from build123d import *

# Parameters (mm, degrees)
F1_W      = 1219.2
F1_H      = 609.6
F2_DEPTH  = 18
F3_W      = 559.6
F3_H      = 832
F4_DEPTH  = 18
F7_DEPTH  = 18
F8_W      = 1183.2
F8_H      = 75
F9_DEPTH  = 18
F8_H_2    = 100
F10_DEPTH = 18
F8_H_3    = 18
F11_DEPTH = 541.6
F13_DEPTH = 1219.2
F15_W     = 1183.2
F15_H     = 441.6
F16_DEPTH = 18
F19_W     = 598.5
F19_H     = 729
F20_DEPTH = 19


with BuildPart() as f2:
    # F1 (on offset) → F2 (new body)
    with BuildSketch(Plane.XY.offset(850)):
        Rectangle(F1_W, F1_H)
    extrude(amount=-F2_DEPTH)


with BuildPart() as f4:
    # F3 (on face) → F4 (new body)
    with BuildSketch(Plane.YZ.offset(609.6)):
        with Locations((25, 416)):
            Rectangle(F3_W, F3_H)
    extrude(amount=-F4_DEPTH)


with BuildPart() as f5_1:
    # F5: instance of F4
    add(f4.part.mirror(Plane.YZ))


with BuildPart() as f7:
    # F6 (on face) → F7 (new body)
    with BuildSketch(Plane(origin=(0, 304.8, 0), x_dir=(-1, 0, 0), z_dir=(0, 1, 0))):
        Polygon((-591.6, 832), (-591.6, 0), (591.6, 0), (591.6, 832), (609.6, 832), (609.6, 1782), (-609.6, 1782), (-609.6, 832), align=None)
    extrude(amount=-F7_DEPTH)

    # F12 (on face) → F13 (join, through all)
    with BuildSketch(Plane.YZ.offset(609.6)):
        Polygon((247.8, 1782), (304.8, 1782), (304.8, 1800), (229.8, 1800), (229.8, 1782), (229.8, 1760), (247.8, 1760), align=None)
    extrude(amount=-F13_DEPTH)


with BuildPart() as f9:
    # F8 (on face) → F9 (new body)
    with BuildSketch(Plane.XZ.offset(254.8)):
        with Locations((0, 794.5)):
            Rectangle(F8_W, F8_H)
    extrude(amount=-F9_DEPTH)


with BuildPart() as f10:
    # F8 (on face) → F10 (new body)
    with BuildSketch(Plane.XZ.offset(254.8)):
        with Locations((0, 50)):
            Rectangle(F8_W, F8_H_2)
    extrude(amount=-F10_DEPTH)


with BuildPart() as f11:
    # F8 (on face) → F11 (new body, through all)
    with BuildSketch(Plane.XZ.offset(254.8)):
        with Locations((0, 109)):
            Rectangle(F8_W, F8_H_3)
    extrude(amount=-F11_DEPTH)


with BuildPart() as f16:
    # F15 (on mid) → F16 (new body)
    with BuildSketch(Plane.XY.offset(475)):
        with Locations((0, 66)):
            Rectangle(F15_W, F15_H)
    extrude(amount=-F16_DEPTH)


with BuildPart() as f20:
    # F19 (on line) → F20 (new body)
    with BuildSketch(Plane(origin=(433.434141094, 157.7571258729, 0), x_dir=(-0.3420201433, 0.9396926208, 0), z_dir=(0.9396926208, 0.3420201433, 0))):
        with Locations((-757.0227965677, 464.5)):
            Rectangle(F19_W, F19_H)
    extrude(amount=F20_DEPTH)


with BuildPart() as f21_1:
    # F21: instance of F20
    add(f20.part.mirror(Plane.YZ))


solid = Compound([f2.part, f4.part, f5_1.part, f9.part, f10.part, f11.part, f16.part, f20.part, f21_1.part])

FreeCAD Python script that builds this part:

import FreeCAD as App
import Part
import Sketcher

V = App.Vector


def add_polygon(sketch, points):
    """Adds a closed chain of lines whose ends are joined by coincident constraints."""
    first, n = sketch.GeometryCount, len(points)
    for a, b in zip(points, points[1:] + points[:1]):
        sketch.addGeometry(Part.LineSegment(App.Vector(*a, 0), App.Vector(*b, 0)), False)
    for i in range(n):
        sketch.addConstraint(Sketcher.Constraint("Coincident", first + i, 2, first + (i + 1) % n, 1))

doc = App.newDocument("Part")
body = doc.addObject("PartDesign::Body", "Body")

# Sketch on XY plane
sketch1 = body.newObject("Sketcher::SketchObject", "Sketch")
sketch1.AttachmentSupport = (doc.getObject("XY_Plane"), [""])
sketch1.MapMode = "FlatFace"
sketch1.AttachmentOffset = App.Placement(V(0, 0, 850), App.Rotation())
add_polygon(sketch1, [(-610, 305), (-610, -305), (610, -305), (610, 305)])  # lines 0-3
sketch1.addConstraint(Sketcher.Constraint("Vertical", 0))
sketch1.addConstraint(Sketcher.Constraint("Horizontal", 1))
sketch1.addConstraint(Sketcher.Constraint("Vertical", 2))
sketch1.addConstraint(Sketcher.Constraint("Horizontal", 3))
sketch1.addConstraint(Sketcher.Constraint("Symmetric", 0, 2, 2, 2, -1, 1))
sketch1.addConstraint(Sketcher.Constraint("DistanceX", 1, 1, 1, 2, 1219.2))
sketch1.addConstraint(Sketcher.Constraint("DistanceY", 0, 2, 0, 1, 609.6))
pad1 = body.newObject("PartDesign::Pad", "Pad")
pad1.Profile = sketch1
pad1.Length = 18
pad1.Reversed = True
body2 = doc.addObject("PartDesign::Body", "Body001")

# Sketch on YZ plane
sketch2 = body2.newObject("Sketcher::SketchObject", "Sketch001")
sketch2.AttachmentSupport = (doc.getObject("YZ_Plane001"), [""])
sketch2.MapMode = "FlatFace"
sketch2.AttachmentOffset = App.Placement(V(0, 0, 609.6), App.Rotation())
add_polygon(sketch2, [(-255, 832), (-255, 0), (305, 0), (305, 832)])  # lines 0-3
sketch2.addConstraint(Sketcher.Constraint("Vertical", 0))
sketch2.addConstraint(Sketcher.Constraint("Horizontal", 1))
sketch2.addConstraint(Sketcher.Constraint("Vertical", 2))
sketch2.addConstraint(Sketcher.Constraint("Horizontal", 3))
sketch2.addConstraint(Sketcher.Constraint("PointOnObject", 0, 2, -1))
sketch2.addConstraint(Sketcher.Constraint("DistanceY", 0, 2, 0, 1, 832.0))
sketch2.addConstraint(Sketcher.Constraint("DistanceX", 1, 1, 1, 2, 559.6))
sketch2.addConstraint(Sketcher.Constraint("DistanceX", 0, 2, -1, 1, 254.8))
pad2 = body2.newObject("PartDesign::Pad", "Pad001")
pad2.Profile = sketch2
pad2.Length = 18
pad2.Reversed = True
body3 = doc.addObject("PartDesign::Body", "Body002")
doc.recompute()

mirroring = doc.addObject("Part::Mirroring", "Mirroring")
mirroring.Source = body2
mirroring.Base = V(0, 0, 0)
mirroring.Normal = V(1, 0, 0)
body3.BaseFeature = mirroring
doc.recompute()
body4 = doc.addObject("PartDesign::Body", "Body003")

# Sketch on XZ plane
sketch3 = body4.newObject("Sketcher::SketchObject", "Sketch002")
sketch3.AttachmentSupport = (doc.getObject("XZ_Plane003"), [""])
sketch3.MapMode = "FlatFace"
sketch3.AttachmentOffset = App.Placement(V(0, 0, -304.8), App.Rotation())
add_polygon(sketch3, [(592, 832), (592, 0), (-592, 0), (-592, 832), (-610, 832), (-610, 1782), (610, 1782), (610, 832)])  # lines 0-7
sketch3.addConstraint(Sketcher.Constraint("Vertical", 0))
sketch3.addConstraint(Sketcher.Constraint("Horizontal", 1))
sketch3.addConstraint(Sketcher.Constraint("Vertical", 2))
sketch3.addConstraint(Sketcher.Constraint("Horizontal", 3))
sketch3.addConstraint(Sketcher.Constraint("Vertical", 4))
sketch3.addConstraint(Sketcher.Constraint("Horizontal", 5))
sketch3.addConstraint(Sketcher.Constraint("Vertical", 6))
sketch3.addConstraint(Sketcher.Constraint("Horizontal", 7))
sketch3.addConstraint(Sketcher.Constraint("Symmetric", 0, 2, 1, 2, -1, 1))
sketch3.addConstraint(Sketcher.Constraint("Symmetric", 3, 2, 6, 2, -2))
sketch3.addConstraint(Sketcher.Constraint("DistanceX", 3, 2, 3, 1, 18.0))
sketch3.addConstraint(Sketcher.Constraint("DistanceY", 0, 2, 0, 1, 832.0))
sketch3.addConstraint(Sketcher.Constraint("DistanceY", 4, 1, 4, 2, 950.0))
sketch3.addConstraint(Sketcher.Constraint("DistanceX", 1, 2, 1, 1, 1183.2))
pad3 = body4.newObject("PartDesign::Pad", "Pad002")
pad3.Profile = sketch3
pad3.Length = 18

# Sketch on YZ plane
sketch4 = body4.newObject("Sketcher::SketchObject", "Sketch003")
sketch4.AttachmentSupport = (doc.getObject("YZ_Plane003"), [""])
sketch4.MapMode = "FlatFace"
sketch4.AttachmentOffset = App.Placement(V(0, 0, 609.6), App.Rotation())
add_polygon(sketch4, [(248, 1782), (305, 1782), (305, 1800), (230, 1800), (230, 1760), (248, 1760)])  # lines 0-5
sketch4.addConstraint(Sketcher.Constraint("Horizontal", 0))
sketch4.addConstraint(Sketcher.Constraint("Vertical", 1))
sketch4.addConstraint(Sketcher.Constraint("Horizontal", 2))
sketch4.addConstraint(Sketcher.Constraint("Vertical", 3))
sketch4.addConstraint(Sketcher.Constraint("Horizontal", 4))
sketch4.addConstraint(Sketcher.Constraint("Vertical", 5))
sketch4.addConstraint(Sketcher.Constraint("Equal", 4, 1))
sketch4.addConstraint(Sketcher.Constraint("DistanceX", 0, 1, 0, 2, 57.0))
sketch4.addConstraint(Sketcher.Constraint("DistanceX", 2, 2, 2, 1, 75.0))
sketch4.addConstraint(Sketcher.Constraint("DistanceY", 3, 2, 3, 1, 40.0))
sketch4.addConstraint(Sketcher.Constraint("DistanceY", -1, 1, 0, 2, 1782.0))
sketch4.addConstraint(Sketcher.Constraint("DistanceX", -1, 1, 0, 2, 304.8))
pad4 = body4.newObject("PartDesign::Pad", "Pad003")
pad4.Profile = sketch4
pad4.Length = 1219.2
pad4.Reversed = True
body5 = doc.addObject("PartDesign::Body", "Body004")

# Sketch on XZ plane
sketch5 = body5.newObject("Sketcher::SketchObject", "Sketch004")
sketch5.AttachmentSupport = (doc.getObject("XZ_Plane004"), [""])
sketch5.MapMode = "FlatFace"
sketch5.AttachmentOffset = App.Placement(V(0, 0, 254.8), App.Rotation())
add_polygon(sketch5, [(-592, 832), (-592, 757), (592, 757), (592, 832)])  # lines 0-3
sketch5.addConstraint(Sketcher.Constraint("Vertical", 0))
sketch5.addConstraint(Sketcher.Constraint("Horizontal", 1))
sketch5.addConstraint(Sketcher.Constraint("Vertical", 2))
sketch5.addConstraint(Sketcher.Constraint("Horizontal", 3))
sketch5.addConstraint(Sketcher.Constraint("DistanceY", 0, 2, 0, 1, 75.0))
sketch5.addConstraint(Sketcher.Constraint("DistanceX", 1, 1, 1, 2, 1183.2))
sketch5.addConstraint(Sketcher.Constraint("DistanceY", -1, 1, 0, 2, 757.0))
sketch5.addConstraint(Sketcher.Constraint("DistanceX", 0, 2, -1, 1, 591.6))
pad5 = body5.newObject("PartDesign::Pad", "Pad004")
pad5.Profile = sketch5
pad5.Length = 18
pad5.Reversed = True
body6 = doc.addObject("PartDesign::Body", "Body005")

# Sketch on XZ plane
sketch6 = body6.newObject("Sketcher::SketchObject", "Sketch005")
sketch6.AttachmentSupport = (doc.getObject("XZ_Plane005"), [""])
sketch6.MapMode = "FlatFace"
sketch6.AttachmentOffset = App.Placement(V(0, 0, 254.8), App.Rotation())
add_polygon(sketch6, [(-592, 100), (-592, 0), (592, 0), (592, 100)])  # lines 0-3
sketch6.addConstraint(Sketcher.Constraint("Vertical", 0))
sketch6.addConstraint(Sketcher.Constraint("Horizontal", 1))
sketch6.addConstraint(Sketcher.Constraint("Vertical", 2))
sketch6.addConstraint(Sketcher.Constraint("Horizontal", 3))
sketch6.addConstraint(Sketcher.Constraint("Symmetric", 0, 2, 1, 2, -1, 1))
sketch6.addConstraint(Sketcher.Constraint("DistanceY", 0, 2, 0, 1, 100.0))
sketch6.addConstraint(Sketcher.Constraint("DistanceX", 1, 1, 1, 2, 1183.2))
pad6 = body6.newObject("PartDesign::Pad", "Pad005")
pad6.Profile = sketch6
pad6.Length = 18
pad6.Reversed = True
body7 = doc.addObject("PartDesign::Body", "Body006")

# Sketch on XZ plane
sketch7 = body7.newObject("Sketcher::SketchObject", "Sketch006")
sketch7.AttachmentSupport = (doc.getObject("XZ_Plane006"), [""])
sketch7.MapMode = "FlatFace"
sketch7.AttachmentOffset = App.Placement(V(0, 0, 254.8), App.Rotation())
add_polygon(sketch7, [(-592, 118), (-592, 100), (592, 100), (592, 118)])  # lines 0-3
sketch7.addConstraint(Sketcher.Constraint("Vertical", 0))
sketch7.addConstraint(Sketcher.Constraint("Horizontal", 1))
sketch7.addConstraint(Sketcher.Constraint("Vertical", 2))
sketch7.addConstraint(Sketcher.Constraint("Horizontal", 3))
sketch7.addConstraint(Sketcher.Constraint("DistanceY", 0, 2, 0, 1, 18.0))
sketch7.addConstraint(Sketcher.Constraint("DistanceX", 1, 1, 1, 2, 1183.2))
sketch7.addConstraint(Sketcher.Constraint("DistanceY", -1, 1, 0, 2, 100.0))
sketch7.addConstraint(Sketcher.Constraint("DistanceX", 0, 2, -1, 1, 591.6))
pad7 = body7.newObject("PartDesign::Pad", "Pad006")
pad7.Profile = sketch7
pad7.Length = 541.6
pad7.Reversed = True
body8 = doc.addObject("PartDesign::Body", "Body007")

# Sketch on XY plane
sketch8 = body8.newObject("Sketcher::SketchObject", "Sketch007")
sketch8.AttachmentSupport = (doc.getObject("XY_Plane007"), [""])
sketch8.MapMode = "FlatFace"
sketch8.AttachmentOffset = App.Placement(V(0, 0, 475), App.Rotation())
add_polygon(sketch8, [(-592, 287), (-592, -155), (592, -155), (592, 287)])  # lines 0-3
sketch8.addConstraint(Sketcher.Constraint("Vertical", 0))
sketch8.addConstraint(Sketcher.Constraint("Horizontal", 1))
sketch8.addConstraint(Sketcher.Constraint("Vertical", 2))
sketch8.addConstraint(Sketcher.Constraint("Horizontal", 3))
sketch8.addConstraint(Sketcher.Constraint("DistanceX", 1, 1, 1, 2, 1183.2))
sketch8.addConstraint(Sketcher.Constraint("DistanceY", 0, 2, 0, 1, 441.6))
sketch8.addConstraint(Sketcher.Constraint("DistanceX", 0, 2, -1, 1, 591.6))
sketch8.addConstraint(Sketcher.Constraint("DistanceY", 0, 2, -1, 1, 154.8))
pad8 = body8.newObject("PartDesign::Pad", "Pad007")
pad8.Profile = sketch8
pad8.Length = 18
pad8.Reversed = True
body9 = doc.addObject("PartDesign::Body", "Body008")

# Sketch on an angled plane
sketch9 = body9.newObject("Sketcher::SketchObject", "Sketch008")
sketch9.Placement = App.Placement(V(433.434141, 157.757126, 0), App.Rotation(V(-0.342020143, 0.939692621, 0), V(0, 0, 1), V(0.939692621, 0.342020143, 0), "ZXY"))
add_polygon(sketch9, [(-1056, 829), (-1056, 100), (-458, 100), (-458, 829)])  # lines 0-3
sketch9.addConstraint(Sketcher.Constraint("Vertical", 0))
sketch9.addConstraint(Sketcher.Constraint("Horizontal", 1))
sketch9.addConstraint(Sketcher.Constraint("Vertical", 2))
sketch9.addConstraint(Sketcher.Constraint("Horizontal", 3))
sketch9.addConstraint(Sketcher.Constraint("DistanceY", 0, 2, 0, 1, 729.0))
sketch9.addConstraint(Sketcher.Constraint("DistanceX", 1, 1, 1, 2, 598.5))
sketch9.addConstraint(Sketcher.Constraint("DistanceY", -1, 1, 0, 2, 100.0))
sketch9.addConstraint(Sketcher.Constraint("DistanceX", 0, 2, -1, 1, 1056.272797))
pad9 = body9.newObject("PartDesign::Pad", "Pad008")
pad9.Profile = sketch9
pad9.Length = 19
body10 = doc.addObject("PartDesign::Body", "Body009")
doc.recompute()

mirroring2 = doc.addObject("Part::Mirroring", "Mirroring001")
mirroring2.Source = body9
mirroring2.Base = V(0, 0, 0)
mirroring2.Normal = V(1, 0, 0)
body10.BaseFeature = mirroring2
doc.recompute()
body4.Visibility = False
mirroring.Visibility = False
mirroring2.Visibility = False

doc.recompute()
